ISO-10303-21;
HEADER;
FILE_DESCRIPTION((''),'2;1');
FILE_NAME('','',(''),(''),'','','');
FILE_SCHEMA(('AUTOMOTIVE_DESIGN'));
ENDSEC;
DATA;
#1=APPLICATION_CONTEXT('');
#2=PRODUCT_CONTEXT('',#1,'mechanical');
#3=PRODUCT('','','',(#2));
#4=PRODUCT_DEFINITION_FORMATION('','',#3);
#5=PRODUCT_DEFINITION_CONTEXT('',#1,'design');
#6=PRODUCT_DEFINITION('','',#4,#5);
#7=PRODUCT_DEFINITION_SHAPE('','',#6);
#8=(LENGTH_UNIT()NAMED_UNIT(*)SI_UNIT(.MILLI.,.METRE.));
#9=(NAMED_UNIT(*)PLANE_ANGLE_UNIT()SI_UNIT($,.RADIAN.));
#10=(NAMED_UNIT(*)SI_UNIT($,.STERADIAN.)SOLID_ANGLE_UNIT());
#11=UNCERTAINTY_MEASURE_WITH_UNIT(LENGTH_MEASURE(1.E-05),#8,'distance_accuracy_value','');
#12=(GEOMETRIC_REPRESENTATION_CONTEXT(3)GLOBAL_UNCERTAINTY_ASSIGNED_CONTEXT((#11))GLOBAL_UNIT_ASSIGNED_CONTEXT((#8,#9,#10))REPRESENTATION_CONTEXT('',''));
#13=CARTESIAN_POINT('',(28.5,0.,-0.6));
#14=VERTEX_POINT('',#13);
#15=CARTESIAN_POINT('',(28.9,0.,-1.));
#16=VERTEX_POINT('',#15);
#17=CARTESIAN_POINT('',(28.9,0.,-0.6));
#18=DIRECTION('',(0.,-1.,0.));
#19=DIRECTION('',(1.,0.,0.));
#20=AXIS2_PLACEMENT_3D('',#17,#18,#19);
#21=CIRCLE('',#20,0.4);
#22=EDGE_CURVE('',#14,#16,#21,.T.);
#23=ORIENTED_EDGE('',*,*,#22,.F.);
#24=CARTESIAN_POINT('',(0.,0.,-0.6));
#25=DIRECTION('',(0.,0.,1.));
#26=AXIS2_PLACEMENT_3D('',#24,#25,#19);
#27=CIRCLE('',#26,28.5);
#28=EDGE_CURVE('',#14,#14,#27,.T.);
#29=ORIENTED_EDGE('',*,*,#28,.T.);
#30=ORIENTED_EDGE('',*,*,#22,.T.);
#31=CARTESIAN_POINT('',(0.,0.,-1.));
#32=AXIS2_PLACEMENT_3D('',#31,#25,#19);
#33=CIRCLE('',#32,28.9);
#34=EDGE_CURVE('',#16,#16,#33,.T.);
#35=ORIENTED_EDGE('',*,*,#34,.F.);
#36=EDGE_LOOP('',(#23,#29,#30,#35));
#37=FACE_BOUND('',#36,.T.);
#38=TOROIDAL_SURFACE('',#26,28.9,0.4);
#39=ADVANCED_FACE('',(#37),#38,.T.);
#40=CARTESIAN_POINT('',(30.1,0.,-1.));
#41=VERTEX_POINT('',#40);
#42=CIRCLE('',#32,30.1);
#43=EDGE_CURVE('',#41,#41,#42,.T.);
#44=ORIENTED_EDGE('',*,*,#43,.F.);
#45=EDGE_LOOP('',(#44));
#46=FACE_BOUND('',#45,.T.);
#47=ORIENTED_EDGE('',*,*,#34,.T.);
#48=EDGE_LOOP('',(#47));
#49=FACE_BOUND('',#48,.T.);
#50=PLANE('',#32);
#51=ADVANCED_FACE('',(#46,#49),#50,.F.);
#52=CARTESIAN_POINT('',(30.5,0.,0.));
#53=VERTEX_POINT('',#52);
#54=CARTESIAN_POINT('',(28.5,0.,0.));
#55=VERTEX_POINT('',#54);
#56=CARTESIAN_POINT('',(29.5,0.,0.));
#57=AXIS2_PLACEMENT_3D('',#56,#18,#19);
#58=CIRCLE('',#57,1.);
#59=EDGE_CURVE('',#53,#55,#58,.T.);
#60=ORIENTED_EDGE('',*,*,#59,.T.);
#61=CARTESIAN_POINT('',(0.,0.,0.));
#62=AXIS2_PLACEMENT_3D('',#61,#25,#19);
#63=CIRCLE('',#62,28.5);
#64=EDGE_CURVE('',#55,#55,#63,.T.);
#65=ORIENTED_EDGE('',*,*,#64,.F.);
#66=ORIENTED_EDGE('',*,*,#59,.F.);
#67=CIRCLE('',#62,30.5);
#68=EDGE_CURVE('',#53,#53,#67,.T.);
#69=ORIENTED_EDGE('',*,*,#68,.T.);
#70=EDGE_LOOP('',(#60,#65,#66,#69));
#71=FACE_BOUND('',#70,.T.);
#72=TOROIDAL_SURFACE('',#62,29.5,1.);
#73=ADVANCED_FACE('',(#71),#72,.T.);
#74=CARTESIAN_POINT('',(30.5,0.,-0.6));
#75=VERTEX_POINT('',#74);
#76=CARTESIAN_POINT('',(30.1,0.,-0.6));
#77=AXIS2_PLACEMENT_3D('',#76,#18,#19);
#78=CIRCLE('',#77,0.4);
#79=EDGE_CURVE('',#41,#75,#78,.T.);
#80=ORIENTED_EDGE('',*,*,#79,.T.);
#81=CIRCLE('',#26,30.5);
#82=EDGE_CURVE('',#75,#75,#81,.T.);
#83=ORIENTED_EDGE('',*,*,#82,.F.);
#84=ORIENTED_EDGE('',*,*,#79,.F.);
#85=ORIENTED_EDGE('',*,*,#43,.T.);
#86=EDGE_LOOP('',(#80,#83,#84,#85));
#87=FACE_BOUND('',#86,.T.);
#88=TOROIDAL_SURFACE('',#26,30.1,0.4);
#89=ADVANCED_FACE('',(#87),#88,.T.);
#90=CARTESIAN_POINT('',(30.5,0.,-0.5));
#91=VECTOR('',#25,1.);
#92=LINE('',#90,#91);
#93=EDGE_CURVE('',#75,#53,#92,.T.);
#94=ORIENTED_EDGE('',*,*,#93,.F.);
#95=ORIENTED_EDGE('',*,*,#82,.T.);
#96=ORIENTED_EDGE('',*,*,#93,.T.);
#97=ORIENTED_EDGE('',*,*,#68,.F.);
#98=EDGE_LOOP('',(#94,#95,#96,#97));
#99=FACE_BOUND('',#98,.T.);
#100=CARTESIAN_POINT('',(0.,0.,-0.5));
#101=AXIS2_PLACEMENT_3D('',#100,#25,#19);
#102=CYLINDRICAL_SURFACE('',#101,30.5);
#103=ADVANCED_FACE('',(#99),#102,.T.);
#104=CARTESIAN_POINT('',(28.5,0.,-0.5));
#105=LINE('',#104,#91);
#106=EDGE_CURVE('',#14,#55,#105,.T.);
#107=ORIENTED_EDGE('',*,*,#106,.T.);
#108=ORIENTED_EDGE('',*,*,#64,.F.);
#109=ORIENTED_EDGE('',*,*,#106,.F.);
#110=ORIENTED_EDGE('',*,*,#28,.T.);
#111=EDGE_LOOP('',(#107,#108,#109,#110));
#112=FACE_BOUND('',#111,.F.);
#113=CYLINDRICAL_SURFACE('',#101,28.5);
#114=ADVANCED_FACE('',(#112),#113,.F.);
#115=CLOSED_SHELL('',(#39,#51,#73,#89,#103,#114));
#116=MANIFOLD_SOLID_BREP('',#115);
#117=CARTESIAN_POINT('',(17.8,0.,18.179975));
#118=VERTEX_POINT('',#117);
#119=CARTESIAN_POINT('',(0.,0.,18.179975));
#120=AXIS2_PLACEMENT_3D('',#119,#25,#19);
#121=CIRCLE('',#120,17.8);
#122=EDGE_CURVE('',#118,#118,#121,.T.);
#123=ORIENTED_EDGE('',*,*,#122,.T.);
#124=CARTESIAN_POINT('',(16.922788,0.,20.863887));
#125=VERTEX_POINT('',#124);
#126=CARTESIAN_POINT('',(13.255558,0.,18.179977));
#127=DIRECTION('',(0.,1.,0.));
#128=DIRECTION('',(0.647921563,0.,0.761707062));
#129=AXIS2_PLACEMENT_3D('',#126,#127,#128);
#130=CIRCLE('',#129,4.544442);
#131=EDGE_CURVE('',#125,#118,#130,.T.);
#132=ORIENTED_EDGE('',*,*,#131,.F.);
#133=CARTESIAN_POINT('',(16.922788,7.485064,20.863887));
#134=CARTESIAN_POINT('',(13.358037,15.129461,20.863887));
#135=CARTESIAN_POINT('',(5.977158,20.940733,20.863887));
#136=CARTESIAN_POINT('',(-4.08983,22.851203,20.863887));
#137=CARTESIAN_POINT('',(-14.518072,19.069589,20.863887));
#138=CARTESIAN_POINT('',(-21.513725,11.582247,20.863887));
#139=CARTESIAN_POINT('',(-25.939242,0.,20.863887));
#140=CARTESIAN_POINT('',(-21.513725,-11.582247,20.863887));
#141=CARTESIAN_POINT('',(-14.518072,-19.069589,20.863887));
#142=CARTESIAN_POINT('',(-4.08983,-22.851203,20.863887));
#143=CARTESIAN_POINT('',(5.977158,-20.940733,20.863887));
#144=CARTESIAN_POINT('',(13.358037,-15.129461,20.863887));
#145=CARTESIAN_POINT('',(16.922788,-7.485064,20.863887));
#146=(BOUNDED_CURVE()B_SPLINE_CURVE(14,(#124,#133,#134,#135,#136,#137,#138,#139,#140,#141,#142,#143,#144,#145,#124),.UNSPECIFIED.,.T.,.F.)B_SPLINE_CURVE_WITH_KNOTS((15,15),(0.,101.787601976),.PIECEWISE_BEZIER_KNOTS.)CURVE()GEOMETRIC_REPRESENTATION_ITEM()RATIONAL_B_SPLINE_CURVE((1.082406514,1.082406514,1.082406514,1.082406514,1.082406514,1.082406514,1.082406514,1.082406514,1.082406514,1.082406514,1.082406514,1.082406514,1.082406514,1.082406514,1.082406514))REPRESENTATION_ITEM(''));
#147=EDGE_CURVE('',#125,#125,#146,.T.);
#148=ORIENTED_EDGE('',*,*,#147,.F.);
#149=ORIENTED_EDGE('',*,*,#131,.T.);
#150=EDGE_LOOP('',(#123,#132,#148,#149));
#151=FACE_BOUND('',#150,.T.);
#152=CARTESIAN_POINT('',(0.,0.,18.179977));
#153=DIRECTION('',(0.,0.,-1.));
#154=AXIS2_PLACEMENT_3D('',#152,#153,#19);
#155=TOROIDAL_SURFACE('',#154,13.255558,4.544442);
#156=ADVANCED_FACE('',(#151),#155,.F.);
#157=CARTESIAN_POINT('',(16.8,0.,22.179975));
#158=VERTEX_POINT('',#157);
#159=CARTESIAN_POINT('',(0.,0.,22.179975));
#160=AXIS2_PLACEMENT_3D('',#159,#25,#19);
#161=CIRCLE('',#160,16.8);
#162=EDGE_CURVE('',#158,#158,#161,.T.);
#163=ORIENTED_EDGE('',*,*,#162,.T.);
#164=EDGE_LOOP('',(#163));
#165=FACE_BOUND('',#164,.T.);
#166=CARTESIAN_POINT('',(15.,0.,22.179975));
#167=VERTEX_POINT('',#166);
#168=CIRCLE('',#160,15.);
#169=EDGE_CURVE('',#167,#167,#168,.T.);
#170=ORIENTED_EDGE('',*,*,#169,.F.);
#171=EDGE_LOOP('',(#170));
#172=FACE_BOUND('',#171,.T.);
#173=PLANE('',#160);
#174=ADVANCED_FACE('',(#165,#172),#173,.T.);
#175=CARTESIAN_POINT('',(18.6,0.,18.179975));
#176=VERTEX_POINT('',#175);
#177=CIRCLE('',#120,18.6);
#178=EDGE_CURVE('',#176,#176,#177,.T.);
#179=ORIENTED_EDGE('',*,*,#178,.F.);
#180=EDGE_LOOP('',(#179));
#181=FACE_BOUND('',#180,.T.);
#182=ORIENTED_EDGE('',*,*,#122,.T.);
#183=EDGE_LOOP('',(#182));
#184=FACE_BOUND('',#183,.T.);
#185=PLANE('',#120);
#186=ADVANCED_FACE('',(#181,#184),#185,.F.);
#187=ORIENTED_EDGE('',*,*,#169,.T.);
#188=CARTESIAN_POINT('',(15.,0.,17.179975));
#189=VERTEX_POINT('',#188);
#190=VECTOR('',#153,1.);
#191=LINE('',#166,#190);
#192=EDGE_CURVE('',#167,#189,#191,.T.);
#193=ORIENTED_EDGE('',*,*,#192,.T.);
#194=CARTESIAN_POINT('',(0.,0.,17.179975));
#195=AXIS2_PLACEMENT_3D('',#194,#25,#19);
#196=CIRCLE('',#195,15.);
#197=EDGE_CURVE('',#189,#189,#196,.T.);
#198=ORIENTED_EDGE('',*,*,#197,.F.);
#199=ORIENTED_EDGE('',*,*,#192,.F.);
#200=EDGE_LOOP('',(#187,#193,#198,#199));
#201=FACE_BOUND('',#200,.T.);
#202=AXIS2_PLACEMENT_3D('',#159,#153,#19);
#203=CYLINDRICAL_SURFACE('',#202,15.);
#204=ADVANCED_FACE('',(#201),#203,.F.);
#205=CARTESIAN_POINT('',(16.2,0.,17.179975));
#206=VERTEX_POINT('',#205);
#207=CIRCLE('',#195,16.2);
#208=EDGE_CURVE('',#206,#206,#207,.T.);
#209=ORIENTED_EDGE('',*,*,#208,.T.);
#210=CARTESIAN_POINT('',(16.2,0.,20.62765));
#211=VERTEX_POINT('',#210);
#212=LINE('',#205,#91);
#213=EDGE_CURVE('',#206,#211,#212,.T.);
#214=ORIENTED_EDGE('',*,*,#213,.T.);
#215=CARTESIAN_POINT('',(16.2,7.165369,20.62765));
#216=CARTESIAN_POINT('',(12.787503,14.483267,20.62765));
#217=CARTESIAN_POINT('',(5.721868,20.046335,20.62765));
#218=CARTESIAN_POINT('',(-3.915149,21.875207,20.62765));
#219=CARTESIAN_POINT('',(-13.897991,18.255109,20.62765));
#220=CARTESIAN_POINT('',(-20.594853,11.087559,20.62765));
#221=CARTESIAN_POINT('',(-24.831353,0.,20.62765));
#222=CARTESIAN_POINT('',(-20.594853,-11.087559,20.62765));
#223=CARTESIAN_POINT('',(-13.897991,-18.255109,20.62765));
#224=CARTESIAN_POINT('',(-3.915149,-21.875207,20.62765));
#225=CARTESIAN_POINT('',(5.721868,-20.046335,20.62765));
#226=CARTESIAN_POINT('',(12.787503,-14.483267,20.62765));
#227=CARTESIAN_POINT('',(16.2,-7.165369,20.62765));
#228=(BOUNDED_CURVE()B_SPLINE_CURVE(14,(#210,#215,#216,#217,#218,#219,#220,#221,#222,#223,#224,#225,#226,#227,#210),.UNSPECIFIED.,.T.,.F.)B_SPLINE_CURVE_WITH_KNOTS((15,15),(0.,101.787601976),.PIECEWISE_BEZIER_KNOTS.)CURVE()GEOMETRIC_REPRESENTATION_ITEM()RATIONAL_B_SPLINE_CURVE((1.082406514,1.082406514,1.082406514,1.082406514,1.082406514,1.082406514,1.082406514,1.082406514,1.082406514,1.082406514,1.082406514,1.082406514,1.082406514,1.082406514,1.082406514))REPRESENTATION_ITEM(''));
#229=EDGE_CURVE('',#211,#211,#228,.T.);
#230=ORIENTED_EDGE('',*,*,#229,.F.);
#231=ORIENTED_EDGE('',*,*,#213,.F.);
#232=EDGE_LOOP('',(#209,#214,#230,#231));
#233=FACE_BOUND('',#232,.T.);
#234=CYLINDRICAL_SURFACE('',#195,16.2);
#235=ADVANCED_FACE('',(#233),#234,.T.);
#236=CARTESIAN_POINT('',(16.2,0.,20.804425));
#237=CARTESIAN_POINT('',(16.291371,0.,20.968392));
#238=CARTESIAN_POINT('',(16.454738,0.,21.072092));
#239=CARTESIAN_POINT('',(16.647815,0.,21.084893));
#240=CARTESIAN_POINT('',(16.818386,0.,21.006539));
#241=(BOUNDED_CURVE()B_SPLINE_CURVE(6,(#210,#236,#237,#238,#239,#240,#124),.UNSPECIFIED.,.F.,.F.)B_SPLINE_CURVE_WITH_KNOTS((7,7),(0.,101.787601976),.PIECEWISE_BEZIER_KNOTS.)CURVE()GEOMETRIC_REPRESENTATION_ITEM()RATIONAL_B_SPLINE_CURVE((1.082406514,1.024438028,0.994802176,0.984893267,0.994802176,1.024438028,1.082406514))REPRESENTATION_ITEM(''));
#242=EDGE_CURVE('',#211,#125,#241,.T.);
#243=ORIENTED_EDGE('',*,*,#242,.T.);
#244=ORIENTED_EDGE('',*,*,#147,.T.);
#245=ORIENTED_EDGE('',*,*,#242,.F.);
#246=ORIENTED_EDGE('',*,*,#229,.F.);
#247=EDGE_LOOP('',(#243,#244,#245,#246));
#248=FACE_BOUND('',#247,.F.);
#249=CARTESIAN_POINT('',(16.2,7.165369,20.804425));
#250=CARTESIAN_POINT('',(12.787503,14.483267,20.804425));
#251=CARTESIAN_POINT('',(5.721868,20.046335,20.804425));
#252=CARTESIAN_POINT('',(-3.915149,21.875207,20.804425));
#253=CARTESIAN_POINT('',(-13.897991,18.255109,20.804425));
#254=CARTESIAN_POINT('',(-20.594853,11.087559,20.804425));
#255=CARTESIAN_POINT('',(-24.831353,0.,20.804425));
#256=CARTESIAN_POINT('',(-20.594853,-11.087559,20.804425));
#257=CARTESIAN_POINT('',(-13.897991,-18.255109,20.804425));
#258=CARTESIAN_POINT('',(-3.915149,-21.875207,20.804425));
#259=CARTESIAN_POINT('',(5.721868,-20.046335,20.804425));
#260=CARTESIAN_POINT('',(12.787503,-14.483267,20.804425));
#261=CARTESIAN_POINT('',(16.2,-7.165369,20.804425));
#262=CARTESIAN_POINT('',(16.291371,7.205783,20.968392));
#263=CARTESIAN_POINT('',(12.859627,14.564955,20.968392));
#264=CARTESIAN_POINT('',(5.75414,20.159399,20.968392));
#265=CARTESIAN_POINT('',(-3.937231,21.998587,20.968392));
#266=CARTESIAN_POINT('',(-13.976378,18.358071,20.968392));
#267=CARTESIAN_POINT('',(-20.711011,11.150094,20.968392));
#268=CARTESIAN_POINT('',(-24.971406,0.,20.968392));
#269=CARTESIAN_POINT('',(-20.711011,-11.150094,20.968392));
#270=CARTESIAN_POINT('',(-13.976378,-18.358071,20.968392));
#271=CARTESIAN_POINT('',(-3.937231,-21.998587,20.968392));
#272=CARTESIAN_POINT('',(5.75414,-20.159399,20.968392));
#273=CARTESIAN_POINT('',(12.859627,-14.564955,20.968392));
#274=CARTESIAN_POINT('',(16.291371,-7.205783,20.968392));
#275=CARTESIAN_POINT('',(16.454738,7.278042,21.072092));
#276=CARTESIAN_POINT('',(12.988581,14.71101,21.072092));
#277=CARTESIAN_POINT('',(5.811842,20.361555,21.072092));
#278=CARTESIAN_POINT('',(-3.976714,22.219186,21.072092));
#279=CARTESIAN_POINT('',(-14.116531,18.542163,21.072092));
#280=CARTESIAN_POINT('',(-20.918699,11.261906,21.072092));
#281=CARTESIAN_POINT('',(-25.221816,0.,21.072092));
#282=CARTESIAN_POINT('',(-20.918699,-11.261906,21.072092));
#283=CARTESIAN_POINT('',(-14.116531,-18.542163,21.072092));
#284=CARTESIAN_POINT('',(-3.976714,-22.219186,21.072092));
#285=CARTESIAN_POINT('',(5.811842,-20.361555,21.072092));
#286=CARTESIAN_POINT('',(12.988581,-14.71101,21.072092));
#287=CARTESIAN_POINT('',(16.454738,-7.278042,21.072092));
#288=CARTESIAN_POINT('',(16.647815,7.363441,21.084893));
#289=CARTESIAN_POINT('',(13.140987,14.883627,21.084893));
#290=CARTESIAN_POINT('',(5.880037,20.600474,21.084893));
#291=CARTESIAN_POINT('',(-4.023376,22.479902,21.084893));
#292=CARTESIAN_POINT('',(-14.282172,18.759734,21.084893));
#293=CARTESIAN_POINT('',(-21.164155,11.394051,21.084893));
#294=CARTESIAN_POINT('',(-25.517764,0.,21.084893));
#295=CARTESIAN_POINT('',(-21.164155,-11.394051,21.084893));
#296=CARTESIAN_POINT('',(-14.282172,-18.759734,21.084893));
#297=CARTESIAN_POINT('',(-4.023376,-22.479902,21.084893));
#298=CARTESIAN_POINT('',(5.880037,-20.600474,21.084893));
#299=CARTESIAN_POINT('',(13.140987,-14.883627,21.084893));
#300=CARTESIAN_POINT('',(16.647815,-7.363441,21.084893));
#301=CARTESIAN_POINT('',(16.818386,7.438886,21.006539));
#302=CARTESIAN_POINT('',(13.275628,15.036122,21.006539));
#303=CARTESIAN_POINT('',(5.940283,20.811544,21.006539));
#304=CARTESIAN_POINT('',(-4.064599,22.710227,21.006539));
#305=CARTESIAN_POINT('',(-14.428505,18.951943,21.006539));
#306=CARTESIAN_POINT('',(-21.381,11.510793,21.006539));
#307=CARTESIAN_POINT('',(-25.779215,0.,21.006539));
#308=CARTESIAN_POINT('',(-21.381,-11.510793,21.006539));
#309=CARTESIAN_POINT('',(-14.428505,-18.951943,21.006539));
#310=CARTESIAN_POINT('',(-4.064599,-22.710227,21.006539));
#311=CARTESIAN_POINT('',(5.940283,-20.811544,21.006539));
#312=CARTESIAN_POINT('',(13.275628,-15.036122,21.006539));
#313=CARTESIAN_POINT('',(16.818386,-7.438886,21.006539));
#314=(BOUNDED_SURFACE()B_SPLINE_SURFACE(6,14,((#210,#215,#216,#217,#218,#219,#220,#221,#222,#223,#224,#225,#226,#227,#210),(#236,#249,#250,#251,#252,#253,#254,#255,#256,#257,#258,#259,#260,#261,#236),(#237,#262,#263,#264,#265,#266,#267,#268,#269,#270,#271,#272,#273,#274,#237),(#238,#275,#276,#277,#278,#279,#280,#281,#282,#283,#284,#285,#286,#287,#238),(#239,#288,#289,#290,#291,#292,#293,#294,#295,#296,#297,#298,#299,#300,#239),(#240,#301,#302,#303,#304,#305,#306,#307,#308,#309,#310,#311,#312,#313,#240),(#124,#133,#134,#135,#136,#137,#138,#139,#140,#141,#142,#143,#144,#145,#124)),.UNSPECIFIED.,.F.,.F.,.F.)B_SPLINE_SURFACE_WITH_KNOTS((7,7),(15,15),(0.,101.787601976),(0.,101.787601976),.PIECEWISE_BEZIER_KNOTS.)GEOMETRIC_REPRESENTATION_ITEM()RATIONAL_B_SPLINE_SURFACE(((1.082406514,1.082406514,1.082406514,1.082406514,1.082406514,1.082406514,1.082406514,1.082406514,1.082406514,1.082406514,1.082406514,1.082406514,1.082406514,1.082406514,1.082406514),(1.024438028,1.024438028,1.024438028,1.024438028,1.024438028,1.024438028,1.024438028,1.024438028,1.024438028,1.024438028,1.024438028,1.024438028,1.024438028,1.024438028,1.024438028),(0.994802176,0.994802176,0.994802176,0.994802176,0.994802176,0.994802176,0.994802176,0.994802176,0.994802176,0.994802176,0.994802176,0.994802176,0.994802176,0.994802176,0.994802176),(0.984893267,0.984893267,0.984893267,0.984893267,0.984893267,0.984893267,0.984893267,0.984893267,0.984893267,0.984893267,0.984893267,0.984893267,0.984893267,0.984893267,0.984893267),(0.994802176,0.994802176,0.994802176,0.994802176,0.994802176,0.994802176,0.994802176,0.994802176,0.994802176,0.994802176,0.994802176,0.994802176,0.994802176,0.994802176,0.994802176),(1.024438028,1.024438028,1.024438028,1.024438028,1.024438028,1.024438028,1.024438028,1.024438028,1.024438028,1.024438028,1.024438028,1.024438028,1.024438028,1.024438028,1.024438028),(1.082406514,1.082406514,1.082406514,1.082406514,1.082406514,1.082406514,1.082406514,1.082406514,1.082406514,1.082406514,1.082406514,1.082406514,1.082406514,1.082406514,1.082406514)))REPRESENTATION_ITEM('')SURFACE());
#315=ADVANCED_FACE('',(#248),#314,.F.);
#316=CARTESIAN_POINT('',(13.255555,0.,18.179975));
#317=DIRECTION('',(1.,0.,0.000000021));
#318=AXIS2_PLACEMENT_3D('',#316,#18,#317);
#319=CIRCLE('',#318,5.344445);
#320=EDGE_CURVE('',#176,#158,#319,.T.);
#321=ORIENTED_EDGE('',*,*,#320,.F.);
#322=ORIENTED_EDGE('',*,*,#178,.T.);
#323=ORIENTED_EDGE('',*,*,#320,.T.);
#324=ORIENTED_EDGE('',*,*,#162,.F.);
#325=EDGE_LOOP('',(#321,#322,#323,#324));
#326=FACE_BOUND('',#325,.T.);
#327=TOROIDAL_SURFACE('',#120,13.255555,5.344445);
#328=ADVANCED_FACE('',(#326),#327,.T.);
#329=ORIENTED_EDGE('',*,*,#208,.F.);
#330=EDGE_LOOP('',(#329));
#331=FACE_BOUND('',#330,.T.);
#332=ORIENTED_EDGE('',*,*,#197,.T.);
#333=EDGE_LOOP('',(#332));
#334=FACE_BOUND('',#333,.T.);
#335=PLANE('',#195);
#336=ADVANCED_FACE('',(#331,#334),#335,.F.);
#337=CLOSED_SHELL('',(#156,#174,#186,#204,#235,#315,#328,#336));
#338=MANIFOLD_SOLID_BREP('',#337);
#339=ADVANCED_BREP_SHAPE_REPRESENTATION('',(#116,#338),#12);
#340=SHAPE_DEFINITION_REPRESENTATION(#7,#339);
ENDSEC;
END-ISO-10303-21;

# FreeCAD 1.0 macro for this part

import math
import FreeCAD as App
import Part
import Sketcher

V = App.Vector


def edges_at(feature, points):
    """Names of the edges that pass closest to the given points."""
    edges = feature.Shape.Edges
    near = lambda p: min(range(len(edges)), key=lambda i: edges[i].distToShape(Part.Vertex(*p))[0])
    return sorted({f"Edge{near(p) + 1}" for p in points})

doc = App.newDocument("Part")
body = doc.addObject("PartDesign::Body", "Body")
body.AllowCompound = True

# Sketch on XZ plane
sketch1 = body.newObject("Sketcher::SketchObject", "Sketch")
sketch1.AttachmentSupport = (doc.getObject("XZ_Plane"), [""])
sketch1.MapMode = "FlatFace"
sketch1.addGeometry([
    Part.ArcOfCircle(Part.Circle(V(29.5, 0, 0), V(0, 0, 1), 1), math.radians(0), math.radians(180)),  # 0
    Part.LineSegment(V(28.5, 0, 0), V(28.5, -1, 0)),  # 1
    Part.LineSegment(V(28.5, -1, 0), V(30.5, -1, 0)),  # 2
    Part.LineSegment(V(30.5, -1, 0), V(30.5, 0, 0)),  # 3
    Part.LineSegment(V(15, 22.2, 0), V(15, 17.2, 0)),  # 4
    Part.LineSegment(V(15, 17.2, 0), V(16.2, 17.2, 0)),  # 5
    Part.LineSegment(V(16.2, 17.2, 0), V(16.2, 21.6, 0)),  # 6
    Part.ArcOfCircle(Part.Circle(V(13.3, 18.2, 0), V(0, 0, 1), 4.5), math.radians(0), math.radians(50)),  # 7
    Part.LineSegment(V(17.8, 18.2, 0), V(18.6, 18.2, 0)),  # 8
    Part.ArcOfCircle(Part.Circle(V(13.3, 18.2, 0), V(0, 0, 1), 5.3), math.radians(0), math.radians(48)),  # 9
    Part.LineSegment(V(16.8, 22.2, 0), V(15, 22.2, 0)),  # 10
], False)
sketch1.addConstraint([
    Sketcher.Constraint("Tangent", 0, 2, 1, 1),
    Sketcher.Constraint("Coincident", 1, 2, 2, 1),
    Sketcher.Constraint("Coincident", 2, 2, 3, 1),
    Sketcher.Constraint("Tangent", 3, 2, 0, 1),
    Sketcher.Constraint("Coincident", 4, 2, 5, 1),
    Sketcher.Constraint("Coincident", 5, 2, 6, 1),
    Sketcher.Constraint("Coincident", 6, 2, 7, 2),
    Sketcher.Constraint("Coincident", 7, 1, 8, 1),
    Sketcher.Constraint("Coincident", 8, 2, 9, 1),
    Sketcher.Constraint("Coincident", 9, 2, 10, 1),
    Sketcher.Constraint("Coincident", 10, 2, 4, 1),
    Sketcher.Constraint("Vertical", 1),
    Sketcher.Constraint("Horizontal", 2),
    Sketcher.Constraint("Vertical", 3),
    Sketcher.Constraint("Vertical", 4),
    Sketcher.Constraint("Horizontal", 5),
    Sketcher.Constraint("Vertical", 6),
    Sketcher.Constraint("Horizontal", 8),
    Sketcher.Constraint("Horizontal", 10),
    Sketcher.Constraint("Coincident", 9, 3, 7, 3),
    Sketcher.Constraint("PointOnObject", 0, 3, -1),
    Sketcher.Constraint("Horizontal", 9, 3, 7, 1),
    Sketcher.Constraint("Radius", 0, 1.0),
    Sketcher.Constraint("DistanceY", 1, 2, 1, 1, 1.0),
    Sketcher.Constraint("DistanceY", 4, 2, 4, 1, 5.0),
    Sketcher.Constraint("DistanceX", 5, 1, 5, 2, 1.2),
    Sketcher.Constraint("DistanceX", 8, 1, 8, 2, 0.8),
    Sketcher.Constraint("DistanceX", 10, 2, 10, 1, 1.8),
    Sketcher.Constraint("DistanceX", -1, 1, 4, 2, 15.0),
    Sketcher.Constraint("DistanceY", 4, 2, 7, 3, 1.000002),
    Sketcher.Constraint("DistanceX", 9, 2, 7, 1, 1.0),
    Sketcher.Constraint("DistanceX", -1, 1, 0, 3, 29.5),
    Sketcher.Constraint("DistanceY", -1, 1, 6, 2, 21.64151),
])
revolution = body.newObject("PartDesign::Revolution", "Revolution")
revolution.Profile = sketch1
revolution.ReferenceAxis = (sketch1, ["V_Axis"])
revolution.Angle = 360
doc.recompute()

fillet = body.newObject("PartDesign::Fillet", "Fillet")
fillet.Base = (revolution, edges_at(revolution, [(-28.5, 0, -1), (-30.5, 0, -1)]))
fillet.Radius = 0.4
doc.recompute()

fillet2 = body.newObject("PartDesign::Fillet", "Fillet001")
fillet2.Base = (fillet, edges_at(fillet, [(-16.2, 0, 21.642)]))
fillet2.Radius = 0.4

doc.recompute()
